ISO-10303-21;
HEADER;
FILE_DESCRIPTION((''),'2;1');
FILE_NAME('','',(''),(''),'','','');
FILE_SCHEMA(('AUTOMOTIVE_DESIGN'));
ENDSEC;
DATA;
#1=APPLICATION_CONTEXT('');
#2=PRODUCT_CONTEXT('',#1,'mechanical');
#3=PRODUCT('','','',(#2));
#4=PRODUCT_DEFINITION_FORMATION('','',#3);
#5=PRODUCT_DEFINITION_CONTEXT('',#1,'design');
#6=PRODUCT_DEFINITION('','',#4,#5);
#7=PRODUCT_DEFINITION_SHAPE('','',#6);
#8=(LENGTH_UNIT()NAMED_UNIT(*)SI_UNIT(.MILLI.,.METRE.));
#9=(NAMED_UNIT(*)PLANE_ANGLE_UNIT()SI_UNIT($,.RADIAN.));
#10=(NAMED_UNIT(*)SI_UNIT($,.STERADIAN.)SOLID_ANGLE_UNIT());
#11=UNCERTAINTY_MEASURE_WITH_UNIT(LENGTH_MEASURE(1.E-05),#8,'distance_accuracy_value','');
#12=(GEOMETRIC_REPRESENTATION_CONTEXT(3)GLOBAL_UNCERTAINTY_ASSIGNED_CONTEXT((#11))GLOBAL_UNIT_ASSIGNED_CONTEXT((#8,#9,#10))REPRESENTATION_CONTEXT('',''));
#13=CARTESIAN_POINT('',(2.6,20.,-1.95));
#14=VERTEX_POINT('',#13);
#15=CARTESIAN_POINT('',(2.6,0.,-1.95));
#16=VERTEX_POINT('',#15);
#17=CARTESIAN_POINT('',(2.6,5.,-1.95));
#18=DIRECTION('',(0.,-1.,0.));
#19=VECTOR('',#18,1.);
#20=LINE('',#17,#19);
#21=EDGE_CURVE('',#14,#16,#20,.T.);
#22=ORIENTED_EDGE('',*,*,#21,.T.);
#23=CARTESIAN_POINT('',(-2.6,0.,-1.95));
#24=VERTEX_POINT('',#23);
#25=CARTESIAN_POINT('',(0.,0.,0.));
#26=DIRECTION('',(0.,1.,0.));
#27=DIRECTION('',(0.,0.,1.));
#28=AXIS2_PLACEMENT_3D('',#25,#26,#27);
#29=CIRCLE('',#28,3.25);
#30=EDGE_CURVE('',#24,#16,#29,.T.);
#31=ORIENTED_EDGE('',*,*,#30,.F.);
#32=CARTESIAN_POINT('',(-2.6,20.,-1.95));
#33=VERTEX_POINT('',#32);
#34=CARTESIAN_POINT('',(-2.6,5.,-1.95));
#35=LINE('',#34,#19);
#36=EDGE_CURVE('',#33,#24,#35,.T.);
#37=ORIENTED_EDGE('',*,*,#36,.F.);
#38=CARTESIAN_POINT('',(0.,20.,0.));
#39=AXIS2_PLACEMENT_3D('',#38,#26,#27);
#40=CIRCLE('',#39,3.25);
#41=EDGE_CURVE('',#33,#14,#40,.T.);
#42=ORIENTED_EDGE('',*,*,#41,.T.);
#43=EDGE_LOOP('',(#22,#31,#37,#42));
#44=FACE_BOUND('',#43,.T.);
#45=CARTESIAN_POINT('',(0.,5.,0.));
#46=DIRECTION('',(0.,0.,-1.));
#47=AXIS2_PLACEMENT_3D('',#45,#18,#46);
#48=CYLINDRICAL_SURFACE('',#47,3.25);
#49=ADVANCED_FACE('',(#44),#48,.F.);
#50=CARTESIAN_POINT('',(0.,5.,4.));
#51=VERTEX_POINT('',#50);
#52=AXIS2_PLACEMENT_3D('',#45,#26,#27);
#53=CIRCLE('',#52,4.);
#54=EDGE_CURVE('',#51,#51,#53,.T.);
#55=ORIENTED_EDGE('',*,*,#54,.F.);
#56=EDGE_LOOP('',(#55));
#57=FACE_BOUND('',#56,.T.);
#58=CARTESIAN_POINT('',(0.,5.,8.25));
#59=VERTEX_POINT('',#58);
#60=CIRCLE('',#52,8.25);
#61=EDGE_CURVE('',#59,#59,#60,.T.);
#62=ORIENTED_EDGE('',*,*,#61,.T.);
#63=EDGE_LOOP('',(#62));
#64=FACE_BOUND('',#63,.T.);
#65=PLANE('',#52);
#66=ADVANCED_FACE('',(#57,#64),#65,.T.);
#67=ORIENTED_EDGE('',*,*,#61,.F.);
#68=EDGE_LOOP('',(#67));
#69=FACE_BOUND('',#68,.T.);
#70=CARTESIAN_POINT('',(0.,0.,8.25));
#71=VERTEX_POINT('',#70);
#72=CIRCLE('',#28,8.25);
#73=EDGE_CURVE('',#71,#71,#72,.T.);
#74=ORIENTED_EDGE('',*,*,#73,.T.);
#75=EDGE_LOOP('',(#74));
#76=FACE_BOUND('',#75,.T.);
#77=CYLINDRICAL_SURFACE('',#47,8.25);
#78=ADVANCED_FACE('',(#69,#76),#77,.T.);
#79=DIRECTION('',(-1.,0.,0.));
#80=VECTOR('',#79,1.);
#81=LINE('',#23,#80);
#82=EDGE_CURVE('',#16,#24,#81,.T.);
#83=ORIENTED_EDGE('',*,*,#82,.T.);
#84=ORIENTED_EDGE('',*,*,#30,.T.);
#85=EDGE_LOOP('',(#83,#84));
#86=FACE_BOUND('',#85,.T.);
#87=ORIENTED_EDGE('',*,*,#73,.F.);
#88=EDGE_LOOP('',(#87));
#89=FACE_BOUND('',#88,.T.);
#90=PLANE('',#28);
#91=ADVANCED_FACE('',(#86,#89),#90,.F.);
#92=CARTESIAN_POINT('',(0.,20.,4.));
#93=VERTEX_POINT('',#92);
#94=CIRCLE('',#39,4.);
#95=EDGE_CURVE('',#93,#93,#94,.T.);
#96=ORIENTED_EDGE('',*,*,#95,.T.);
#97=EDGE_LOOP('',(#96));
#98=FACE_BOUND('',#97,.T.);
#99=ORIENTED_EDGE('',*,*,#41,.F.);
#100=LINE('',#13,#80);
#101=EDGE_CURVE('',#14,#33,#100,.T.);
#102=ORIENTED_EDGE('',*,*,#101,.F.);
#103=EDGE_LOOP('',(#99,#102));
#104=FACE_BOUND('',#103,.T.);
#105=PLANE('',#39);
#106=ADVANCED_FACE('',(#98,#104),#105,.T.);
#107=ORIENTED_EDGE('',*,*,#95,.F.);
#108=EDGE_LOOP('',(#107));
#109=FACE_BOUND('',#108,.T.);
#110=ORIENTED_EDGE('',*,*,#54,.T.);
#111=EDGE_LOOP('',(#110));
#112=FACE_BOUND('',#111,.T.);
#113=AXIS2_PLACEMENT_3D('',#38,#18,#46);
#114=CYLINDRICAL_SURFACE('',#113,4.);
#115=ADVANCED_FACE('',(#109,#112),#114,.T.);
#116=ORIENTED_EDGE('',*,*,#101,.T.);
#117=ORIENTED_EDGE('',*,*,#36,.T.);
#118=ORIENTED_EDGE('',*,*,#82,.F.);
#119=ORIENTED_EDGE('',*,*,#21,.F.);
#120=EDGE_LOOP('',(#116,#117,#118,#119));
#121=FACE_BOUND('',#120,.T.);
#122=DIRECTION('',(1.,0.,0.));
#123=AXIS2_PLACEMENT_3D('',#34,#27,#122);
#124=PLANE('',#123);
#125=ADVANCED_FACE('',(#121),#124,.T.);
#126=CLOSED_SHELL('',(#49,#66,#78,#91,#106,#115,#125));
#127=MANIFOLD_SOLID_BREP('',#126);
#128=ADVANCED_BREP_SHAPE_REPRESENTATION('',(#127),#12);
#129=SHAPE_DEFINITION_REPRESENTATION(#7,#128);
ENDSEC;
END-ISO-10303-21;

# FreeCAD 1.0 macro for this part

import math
import FreeCAD as App
import Part
import Sketcher
Q = App.Units.Quantity

doc = App.newDocument("Part")
body = doc.addObject("PartDesign::Body", "Body")

sketch1 = body.newObject("Sketcher::SketchObject", "Sketch")
sketch1.AttachmentSupport = (doc.getObject("XZ_Plane"), [""])
sketch1.MapMode = "FlatFace"
sketch1.addGeometry(Part.Circle(App.Vector(0, 0, 0), App.Vector(0, 0, 1), 8.2), False)
sketch1.addGeometry(Part.ArcOfCircle(Part.Circle(App.Vector(0, 0, 0), App.Vector(0, 0, 1), 3.2), math.radians(-37), math.radians(217)), False)
sketch1.addGeometry(Part.LineSegment(App.Vector(-2.6, -1.9, 0), App.Vector(2.6, -1.9, 0)), False)
sketch1.addConstraint(Sketcher.Constraint("Coincident", 1, 1, 2, 2))
sketch1.addConstraint(Sketcher.Constraint("Coincident", 2, 1, 1, 2))
sketch1.addConstraint(Sketcher.Constraint("Horizontal", 2))
sketch1.addConstraint(Sketcher.Constraint("Coincident", 0, 3, -1, 1))
sketch1.addConstraint(Sketcher.Constraint("Coincident", 1, 3, -1, 1))
sketch1.addConstraint(Sketcher.Constraint("Diameter", 0, Q("16.5 mm")))
sketch1.addConstraint(Sketcher.Constraint("Radius", 1, Q("3.25 mm")))
sketch1.addConstraint(Sketcher.Constraint("DistanceX", 2, 1, 2, 2, Q("5.2 mm")))
pad1 = body.newObject("PartDesign::Pad", "Pad")
pad1.Profile = sketch1
pad1.Length = 5
pad1.Reversed = True

sketch2 = body.newObject("Sketcher::SketchObject", "Sketch001")
sketch2.AttachmentSupport = (doc.getObject("XZ_Plane"), [""])
sketch2.MapMode = "FlatFace"
sketch2.AttachmentOffset = App.Placement(App.Vector(0, 0, -5), App.Rotation())
sketch2.addGeometry(Part.Circle(App.Vector(0, 0, 0), App.Vector(0, 0, 1), 4), False)
sketch2.addGeometry(Part.LineSegment(App.Vector(-2.6, -1.9, 0), App.Vector(2.6, -1.9, 0)), False)
sketch2.addGeometry(Part.ArcOfCircle(Part.Circle(App.Vector(0, 0, 0), App.Vector(0, 0, 1), 3.2), math.radians(-37), math.radians(217)), False)
sketch2.addConstraint(Sketcher.Constraint("Coincident", 1, 1, 2, 2))
sketch2.addConstraint(Sketcher.Constraint("Coincident", 2, 1, 1, 2))
sketch2.addConstraint(Sketcher.Constraint("Horizontal", 1))
sketch2.addConstraint(Sketcher.Constraint("Coincident", 0, 3, -1, 1))
sketch2.addConstraint(Sketcher.Constraint("Coincident", 2, 3, -1, 1))
sketch2.addConstraint(Sketcher.Constraint("Diameter", 0, Q("8 mm")))
sketch2.addConstraint(Sketcher.Constraint("Radius", 2, Q("3.25 mm")))
sketch2.addConstraint(Sketcher.Constraint("DistanceX", 1, 1, 1, 2, Q("5.2 mm")))
pad2 = body.newObject("PartDesign::Pad", "Pad001")
pad2.Profile = sketch2
pad2.Length = 15
pad2.Reversed = True

doc.recompute()
